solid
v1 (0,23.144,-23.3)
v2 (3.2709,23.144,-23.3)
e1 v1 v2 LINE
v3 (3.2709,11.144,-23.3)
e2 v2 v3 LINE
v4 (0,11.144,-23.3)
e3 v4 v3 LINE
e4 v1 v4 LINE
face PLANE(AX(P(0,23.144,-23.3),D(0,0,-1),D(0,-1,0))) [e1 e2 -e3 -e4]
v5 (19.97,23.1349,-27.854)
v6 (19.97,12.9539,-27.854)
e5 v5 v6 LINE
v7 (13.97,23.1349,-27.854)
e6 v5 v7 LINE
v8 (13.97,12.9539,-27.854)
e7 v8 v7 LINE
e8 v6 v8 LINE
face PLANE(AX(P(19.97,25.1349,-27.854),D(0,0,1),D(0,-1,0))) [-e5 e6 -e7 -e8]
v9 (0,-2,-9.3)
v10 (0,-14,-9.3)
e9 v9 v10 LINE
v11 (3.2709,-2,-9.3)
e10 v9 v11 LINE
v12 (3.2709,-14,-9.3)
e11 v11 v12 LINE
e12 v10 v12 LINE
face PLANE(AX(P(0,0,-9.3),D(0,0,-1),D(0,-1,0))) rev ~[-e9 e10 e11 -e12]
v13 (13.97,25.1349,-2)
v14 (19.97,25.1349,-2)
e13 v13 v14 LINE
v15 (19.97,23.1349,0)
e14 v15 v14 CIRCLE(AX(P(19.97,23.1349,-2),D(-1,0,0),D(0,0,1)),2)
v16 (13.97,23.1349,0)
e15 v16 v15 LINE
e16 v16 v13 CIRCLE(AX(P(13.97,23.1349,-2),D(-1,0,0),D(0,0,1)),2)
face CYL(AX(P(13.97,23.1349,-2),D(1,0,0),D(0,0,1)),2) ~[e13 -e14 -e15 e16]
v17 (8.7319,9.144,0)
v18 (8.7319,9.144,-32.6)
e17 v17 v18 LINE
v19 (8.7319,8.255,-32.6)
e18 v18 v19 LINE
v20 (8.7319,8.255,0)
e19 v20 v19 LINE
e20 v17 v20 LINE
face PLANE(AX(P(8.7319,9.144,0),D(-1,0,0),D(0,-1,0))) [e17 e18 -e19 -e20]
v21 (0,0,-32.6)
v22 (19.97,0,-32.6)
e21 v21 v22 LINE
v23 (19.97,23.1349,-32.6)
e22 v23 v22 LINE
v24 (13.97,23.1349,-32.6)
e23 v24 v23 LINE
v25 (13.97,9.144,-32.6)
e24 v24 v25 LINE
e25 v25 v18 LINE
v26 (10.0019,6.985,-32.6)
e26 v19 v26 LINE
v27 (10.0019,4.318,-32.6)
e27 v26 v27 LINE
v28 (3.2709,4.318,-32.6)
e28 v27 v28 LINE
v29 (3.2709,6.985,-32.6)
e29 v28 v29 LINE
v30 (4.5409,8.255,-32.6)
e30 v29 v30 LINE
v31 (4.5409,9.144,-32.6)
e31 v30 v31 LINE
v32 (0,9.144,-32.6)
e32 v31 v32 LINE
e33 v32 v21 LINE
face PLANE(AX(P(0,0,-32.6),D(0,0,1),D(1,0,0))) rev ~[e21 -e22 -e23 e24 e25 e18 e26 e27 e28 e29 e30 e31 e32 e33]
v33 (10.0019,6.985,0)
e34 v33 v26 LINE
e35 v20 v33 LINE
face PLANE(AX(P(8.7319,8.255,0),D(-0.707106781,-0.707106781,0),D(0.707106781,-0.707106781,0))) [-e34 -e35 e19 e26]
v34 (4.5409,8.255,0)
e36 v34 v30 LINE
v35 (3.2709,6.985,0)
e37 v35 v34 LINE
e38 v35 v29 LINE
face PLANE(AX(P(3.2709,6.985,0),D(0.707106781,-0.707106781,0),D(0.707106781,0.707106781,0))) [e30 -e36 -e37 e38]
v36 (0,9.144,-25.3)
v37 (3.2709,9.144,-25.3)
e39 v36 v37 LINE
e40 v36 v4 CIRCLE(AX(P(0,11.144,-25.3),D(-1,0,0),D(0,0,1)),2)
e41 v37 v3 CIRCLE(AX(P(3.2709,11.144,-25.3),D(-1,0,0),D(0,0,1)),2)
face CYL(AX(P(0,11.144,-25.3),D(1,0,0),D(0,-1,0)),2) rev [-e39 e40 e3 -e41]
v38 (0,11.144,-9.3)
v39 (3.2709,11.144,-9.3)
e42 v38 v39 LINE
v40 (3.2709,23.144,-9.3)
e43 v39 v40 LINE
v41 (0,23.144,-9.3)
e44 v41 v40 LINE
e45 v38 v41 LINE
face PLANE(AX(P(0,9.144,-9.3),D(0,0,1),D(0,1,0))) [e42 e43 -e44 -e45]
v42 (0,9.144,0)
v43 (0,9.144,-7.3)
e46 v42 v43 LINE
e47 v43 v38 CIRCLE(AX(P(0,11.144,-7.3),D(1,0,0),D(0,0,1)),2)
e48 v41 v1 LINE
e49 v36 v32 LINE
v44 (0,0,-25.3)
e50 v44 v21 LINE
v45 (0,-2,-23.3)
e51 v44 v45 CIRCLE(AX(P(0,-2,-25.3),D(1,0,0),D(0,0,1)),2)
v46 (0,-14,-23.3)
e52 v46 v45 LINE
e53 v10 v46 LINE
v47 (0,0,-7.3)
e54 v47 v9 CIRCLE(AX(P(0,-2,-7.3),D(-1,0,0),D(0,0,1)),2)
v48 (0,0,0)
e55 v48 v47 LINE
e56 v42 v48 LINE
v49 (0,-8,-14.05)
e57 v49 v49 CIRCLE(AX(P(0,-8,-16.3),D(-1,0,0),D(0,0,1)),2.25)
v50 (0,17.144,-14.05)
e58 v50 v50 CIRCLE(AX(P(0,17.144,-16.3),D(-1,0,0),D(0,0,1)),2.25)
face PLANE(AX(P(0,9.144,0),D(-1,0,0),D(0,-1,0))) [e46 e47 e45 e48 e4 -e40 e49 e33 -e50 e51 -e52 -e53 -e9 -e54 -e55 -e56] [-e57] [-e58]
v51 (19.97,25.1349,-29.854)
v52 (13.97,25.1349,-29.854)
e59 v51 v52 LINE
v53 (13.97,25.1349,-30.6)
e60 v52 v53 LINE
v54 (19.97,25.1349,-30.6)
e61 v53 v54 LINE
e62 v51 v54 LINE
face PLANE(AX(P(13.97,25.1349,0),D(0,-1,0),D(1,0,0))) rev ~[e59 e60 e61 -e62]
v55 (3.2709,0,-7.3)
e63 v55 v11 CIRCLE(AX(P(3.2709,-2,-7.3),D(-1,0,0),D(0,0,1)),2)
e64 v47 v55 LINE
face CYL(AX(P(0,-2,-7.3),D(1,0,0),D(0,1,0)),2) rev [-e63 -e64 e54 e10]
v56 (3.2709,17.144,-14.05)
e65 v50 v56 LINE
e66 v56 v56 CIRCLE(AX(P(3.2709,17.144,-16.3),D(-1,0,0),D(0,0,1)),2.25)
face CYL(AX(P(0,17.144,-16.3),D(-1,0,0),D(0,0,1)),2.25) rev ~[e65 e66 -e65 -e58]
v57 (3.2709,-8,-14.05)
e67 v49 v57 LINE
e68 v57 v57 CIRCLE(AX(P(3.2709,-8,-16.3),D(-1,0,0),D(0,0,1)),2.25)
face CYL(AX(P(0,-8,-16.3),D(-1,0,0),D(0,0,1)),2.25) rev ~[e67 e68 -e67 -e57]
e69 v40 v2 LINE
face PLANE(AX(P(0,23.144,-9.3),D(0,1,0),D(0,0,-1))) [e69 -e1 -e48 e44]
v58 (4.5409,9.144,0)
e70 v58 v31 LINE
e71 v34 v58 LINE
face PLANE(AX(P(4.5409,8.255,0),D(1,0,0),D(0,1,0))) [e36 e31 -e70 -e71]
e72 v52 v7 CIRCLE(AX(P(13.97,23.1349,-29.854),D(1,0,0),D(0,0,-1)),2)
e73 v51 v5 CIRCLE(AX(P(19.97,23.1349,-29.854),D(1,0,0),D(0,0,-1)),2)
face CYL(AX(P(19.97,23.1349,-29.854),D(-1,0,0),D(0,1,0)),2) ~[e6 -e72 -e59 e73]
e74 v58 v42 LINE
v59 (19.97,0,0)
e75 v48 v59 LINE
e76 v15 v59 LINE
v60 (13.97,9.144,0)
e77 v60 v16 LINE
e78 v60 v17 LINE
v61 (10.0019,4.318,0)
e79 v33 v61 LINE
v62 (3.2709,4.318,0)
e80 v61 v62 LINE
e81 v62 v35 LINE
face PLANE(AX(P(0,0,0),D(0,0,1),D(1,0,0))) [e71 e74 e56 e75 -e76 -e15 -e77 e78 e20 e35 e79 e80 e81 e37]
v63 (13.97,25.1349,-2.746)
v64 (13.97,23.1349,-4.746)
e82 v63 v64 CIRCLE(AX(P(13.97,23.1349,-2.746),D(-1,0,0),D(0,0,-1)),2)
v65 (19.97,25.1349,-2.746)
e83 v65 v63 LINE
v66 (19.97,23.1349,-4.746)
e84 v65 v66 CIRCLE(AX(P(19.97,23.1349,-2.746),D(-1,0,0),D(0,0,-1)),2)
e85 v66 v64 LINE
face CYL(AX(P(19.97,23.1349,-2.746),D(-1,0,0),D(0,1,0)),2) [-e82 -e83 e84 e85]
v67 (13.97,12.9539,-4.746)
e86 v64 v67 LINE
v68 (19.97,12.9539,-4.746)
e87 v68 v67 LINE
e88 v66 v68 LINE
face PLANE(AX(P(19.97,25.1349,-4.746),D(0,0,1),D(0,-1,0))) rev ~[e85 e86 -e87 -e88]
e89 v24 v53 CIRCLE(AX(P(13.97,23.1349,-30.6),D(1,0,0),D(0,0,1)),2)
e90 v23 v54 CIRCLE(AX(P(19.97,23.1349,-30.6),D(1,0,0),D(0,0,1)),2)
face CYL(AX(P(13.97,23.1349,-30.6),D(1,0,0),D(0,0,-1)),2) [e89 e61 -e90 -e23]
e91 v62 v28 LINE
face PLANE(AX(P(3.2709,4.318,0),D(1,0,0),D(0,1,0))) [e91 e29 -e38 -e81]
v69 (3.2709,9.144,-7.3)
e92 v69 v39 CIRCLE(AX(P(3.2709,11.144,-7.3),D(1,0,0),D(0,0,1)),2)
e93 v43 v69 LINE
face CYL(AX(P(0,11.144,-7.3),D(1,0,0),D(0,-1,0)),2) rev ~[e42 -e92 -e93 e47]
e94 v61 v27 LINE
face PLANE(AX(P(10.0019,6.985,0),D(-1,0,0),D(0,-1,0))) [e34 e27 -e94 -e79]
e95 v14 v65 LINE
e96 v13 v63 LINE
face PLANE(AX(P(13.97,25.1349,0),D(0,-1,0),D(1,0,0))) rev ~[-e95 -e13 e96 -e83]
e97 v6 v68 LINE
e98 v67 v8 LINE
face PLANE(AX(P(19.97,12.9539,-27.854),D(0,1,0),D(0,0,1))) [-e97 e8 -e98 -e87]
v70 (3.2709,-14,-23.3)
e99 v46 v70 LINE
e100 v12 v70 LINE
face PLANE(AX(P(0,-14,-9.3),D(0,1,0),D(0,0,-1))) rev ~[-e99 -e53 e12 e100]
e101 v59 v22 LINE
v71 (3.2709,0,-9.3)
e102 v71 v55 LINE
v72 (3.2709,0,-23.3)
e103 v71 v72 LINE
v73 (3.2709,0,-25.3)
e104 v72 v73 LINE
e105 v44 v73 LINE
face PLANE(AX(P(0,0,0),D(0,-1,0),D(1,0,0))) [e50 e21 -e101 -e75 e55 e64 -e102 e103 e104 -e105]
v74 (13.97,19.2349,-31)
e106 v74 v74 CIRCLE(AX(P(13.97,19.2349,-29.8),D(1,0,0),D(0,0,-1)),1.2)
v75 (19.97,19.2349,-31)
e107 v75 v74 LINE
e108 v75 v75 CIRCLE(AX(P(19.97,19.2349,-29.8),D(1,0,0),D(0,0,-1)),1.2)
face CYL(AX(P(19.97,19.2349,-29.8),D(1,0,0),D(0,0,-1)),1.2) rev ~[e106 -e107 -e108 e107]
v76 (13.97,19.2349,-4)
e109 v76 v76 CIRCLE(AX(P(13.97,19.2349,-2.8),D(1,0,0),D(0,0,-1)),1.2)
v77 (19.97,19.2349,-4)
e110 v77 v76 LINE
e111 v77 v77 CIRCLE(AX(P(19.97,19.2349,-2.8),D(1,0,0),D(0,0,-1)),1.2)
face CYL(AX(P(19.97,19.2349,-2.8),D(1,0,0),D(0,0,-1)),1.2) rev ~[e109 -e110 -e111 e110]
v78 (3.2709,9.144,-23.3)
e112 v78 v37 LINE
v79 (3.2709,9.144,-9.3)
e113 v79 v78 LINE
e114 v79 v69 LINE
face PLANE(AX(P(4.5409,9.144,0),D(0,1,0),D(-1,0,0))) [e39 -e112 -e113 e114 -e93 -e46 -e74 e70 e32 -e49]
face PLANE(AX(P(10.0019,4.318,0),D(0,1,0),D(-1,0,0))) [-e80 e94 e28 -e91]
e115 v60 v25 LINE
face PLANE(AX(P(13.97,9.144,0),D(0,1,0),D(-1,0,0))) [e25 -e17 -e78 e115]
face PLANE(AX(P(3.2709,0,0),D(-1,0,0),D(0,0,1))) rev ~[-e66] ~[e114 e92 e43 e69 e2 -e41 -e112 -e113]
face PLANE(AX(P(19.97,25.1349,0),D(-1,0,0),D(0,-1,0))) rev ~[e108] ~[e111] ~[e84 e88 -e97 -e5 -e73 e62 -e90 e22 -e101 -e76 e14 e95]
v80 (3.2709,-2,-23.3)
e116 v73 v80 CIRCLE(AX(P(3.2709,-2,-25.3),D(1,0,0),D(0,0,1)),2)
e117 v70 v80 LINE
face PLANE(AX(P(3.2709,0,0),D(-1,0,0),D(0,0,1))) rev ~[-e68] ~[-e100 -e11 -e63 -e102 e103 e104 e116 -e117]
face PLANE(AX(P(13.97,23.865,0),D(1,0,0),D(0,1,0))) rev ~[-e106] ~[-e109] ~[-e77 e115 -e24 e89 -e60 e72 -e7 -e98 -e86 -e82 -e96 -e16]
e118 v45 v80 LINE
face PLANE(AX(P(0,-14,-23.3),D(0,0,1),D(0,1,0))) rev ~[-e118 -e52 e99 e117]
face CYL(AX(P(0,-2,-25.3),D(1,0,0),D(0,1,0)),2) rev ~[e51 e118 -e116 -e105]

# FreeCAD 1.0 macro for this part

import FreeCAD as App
import Part
import Sketcher
from FreeCAD import Vector


def edges_at(feature, points):
    """Names of the edges that pass closest to the given points."""
    edges = feature.Shape.Edges
    near = lambda p: min(range(len(edges)), key=lambda i: edges[i].distToShape(Part.Vertex(*p))[0])
    return sorted({f"Edge{near(p) + 1}" for p in points})

doc = App.newDocument("Part")
body = doc.addObject("PartDesign::Body", "Body")

sketch1 = body.newObject("Sketcher::SketchObject", "Sketch")
sketch1.AttachmentSupport = (doc.getObject("XY_Plane"), [""])
sketch1.MapMode = "FlatFace"
sketch1.addGeometry([
    Part.LineSegment(Vector(14, 25.1, 0), Vector(14, 9.1, 0)),
    Part.LineSegment(Vector(14, 9.1, 0), Vector(8.7, 9.1, 0)),
    Part.LineSegment(Vector(8.7, 9.1, 0), Vector(8.7, 8.3, 0)),
    Part.LineSegment(Vector(8.7, 8.3, 0), Vector(10, 7, 0)),
    Part.LineSegment(Vector(10, 7, 0), Vector(10, 4.3, 0)),
    Part.LineSegment(Vector(10, 4.3, 0), Vector(3.3, 4.3, 0)),
    Part.LineSegment(Vector(3.3, 4.3, 0), Vector(3.3, 7, 0)),
    Part.LineSegment(Vector(3.3, 7, 0), Vector(4.5, 8.3, 0)),
    Part.LineSegment(Vector(4.5, 8.3, 0), Vector(4.5, 9.1, 0)),
    Part.LineSegment(Vector(4.5, 9.1, 0), Vector(0, 9.1, 0)),
    Part.LineSegment(Vector(0, 9.1, 0), Vector(0, 0, 0)),
    Part.LineSegment(Vector(0, 0, 0), Vector(20, 0, 0)),
    Part.LineSegment(Vector(20, 0, 0), Vector(20, 25.1, 0)),
    Part.LineSegment(Vector(20, 25.1, 0), Vector(14, 25.1, 0)),
], False)
sketch1.addConstraint([
    Sketcher.Constraint("Coincident", 0, 2, 1, 1),
    Sketcher.Constraint("Coincident", 1, 2, 2, 1),
    Sketcher.Constraint("Coincident", 2, 2, 3, 1),
    Sketcher.Constraint("Coincident", 3, 2, 4, 1),
    Sketcher.Constraint("Coincident", 4, 2, 5, 1),
    Sketcher.Constraint("Coincident", 5, 2, 6, 1),
    Sketcher.Constraint("Coincident", 6, 2, 7, 1),
    Sketcher.Constraint("Coincident", 7, 2, 8, 1),
    Sketcher.Constraint("Coincident", 8, 2, 9, 1),
    Sketcher.Constraint("Coincident", 9, 2, 10, 1),
    Sketcher.Constraint("Coincident", 10, 2, 11, 1),
    Sketcher.Constraint("Coincident", 11, 2, 12, 1),
    Sketcher.Constraint("Coincident", 12, 2, 13, 1),
    Sketcher.Constraint("Coincident", 13, 2, 0, 1),
    Sketcher.Constraint("Vertical", 0),
    Sketcher.Constraint("Horizontal", 1),
    Sketcher.Constraint("Vertical", 2),
    Sketcher.Constraint("Vertical", 4),
    Sketcher.Constraint("Horizontal", 5),
    Sketcher.Constraint("Vertical", 6),
    Sketcher.Constraint("Vertical", 8),
    Sketcher.Constraint("Horizontal", 9),
    Sketcher.Constraint("Vertical", 10),
    Sketcher.Constraint("Horizontal", 11),
    Sketcher.Constraint("Vertical", 12),
    Sketcher.Constraint("Horizontal", 13),
    Sketcher.Constraint("Coincident", 10, 2, -1, 1),
    Sketcher.Constraint("Perpendicular", 3, 7),
    Sketcher.Constraint("Horizontal", 3, 2, 6, 2),
    Sketcher.Constraint("Horizontal", 2, 2, 7, 2),
    Sketcher.Constraint("Horizontal", 1, 2, 8, 2),
    Sketcher.Constraint("Equal", 3, 7),
    Sketcher.Constraint("DistanceX", 13, 2, 13, 1, 6.0),
    Sketcher.Constraint("DistanceX", 11, 1, 11, 2, 19.97),
    Sketcher.Constraint("DistanceX", 1, 2, 1, 1, 5.238),
    Sketcher.Constraint("DistanceX", 5, 2, 5, 1, 6.731),
    Sketcher.Constraint("DistanceX", 9, 2, 9, 1, 4.541),
    Sketcher.Constraint("DistanceY", 0, 2, 0, 1, 15.991),
    Sketcher.Constraint("DistanceY", 2, 2, 2, 1, 0.889),
    Sketcher.Constraint("DistanceY", 4, 2, 4, 1, 2.667),
    Sketcher.Constraint("DistanceY", 10, 2, 10, 1, 9.144),
])
pad1 = body.newObject("PartDesign::Pad", "Pad")
pad1.Profile = sketch1
pad1.Length = 32.6
pad1.Reversed = True

sketch2 = body.newObject("Sketcher::SketchObject", "Sketch001")
sketch2.AttachmentSupport = (doc.getObject("YZ_Plane"), [""])
sketch2.MapMode = "FlatFace"
sketch2.AttachmentOffset = App.Placement(Vector(0, 0, 19.97), App.Rotation())
sketch2.addGeometry([
    Part.LineSegment(Vector(25, -28, 0), Vector(25, -5, 0)),
    Part.LineSegment(Vector(25, -5, 0), Vector(13, -5, 0)),
    Part.LineSegment(Vector(13, -5, 0), Vector(13, -28, 0)),
    Part.LineSegment(Vector(13, -28, 0), Vector(25, -28, 0)),
], False)
sketch2.addConstraint([
    Sketcher.Constraint("Coincident", 0, 2, 1, 1),
    Sketcher.Constraint("Coincident", 1, 2, 2, 1),
    Sketcher.Constraint("Coincident", 2, 2, 3, 1),
    Sketcher.Constraint("Coincident", 3, 2, 0, 1),
    Sketcher.Constraint("Vertical", 0),
    Sketcher.Constraint("Horizontal", 1),
    Sketcher.Constraint("Vertical", 2),
    Sketcher.Constraint("Horizontal", 3),
    Sketcher.Constraint("DistanceX", 1, 2, 1, 1, 12.181),
    Sketcher.Constraint("DistanceY", 0, 1, 0, 2, 23.108),
    Sketcher.Constraint("DistanceX", -1, 1, 0, 2, 25.135),
    Sketcher.Constraint("DistanceY", 0, 2, -1, 1, 4.746),
])
pocket1 = body.newObject("PartDesign::Pocket", "Pocket")
pocket1.Profile = sketch2
pocket1.Length = 32.6

sketch3 = body.newObject("Sketcher::SketchObject", "Sketch002")
sketch3.AttachmentSupport = (doc.getObject("YZ_Plane"), [""])
sketch3.MapMode = "FlatFace"
sketch3.AttachmentOffset = App.Placement(Vector(0, 0, 19.97), App.Rotation())
sketch3.addGeometry([
    Part.Circle(Vector(19.2, -2.8, 0), Vector(0, 0, 1), 1.2),
    Part.Circle(Vector(19.2, -29.8, 0), Vector(0, 0, 1), 1.2),
], False)
sketch3.addConstraint([
    Sketcher.Constraint("Equal", 0, 1),
    Sketcher.Constraint("Vertical", 0, 3, 1, 3),
    Sketcher.Constraint("Diameter", 0, 2.4),
    Sketcher.Constraint("DistanceY", 1, 3, 0, 3, 27.0),
    Sketcher.Constraint("DistanceY", 0, 3, -1, 1, 2.8),
    Sketcher.Constraint("DistanceX", -1, 1, 0, 3, 19.235),
])
pocket2 = body.newObject("PartDesign::Pocket", "Pocket001")
pocket2.Profile = sketch3
pocket2.Length = 32.6
doc.recompute()

fillet = body.newObject("PartDesign::Fillet", "Fillet")
fillet.Base = (pocket2, edges_at(pocket2, [
    (16.97, 25.135, 0),
    (16.97, 25.135, -4.746),
    (16.97, 25.135, -27.854),
    (16.97, 25.135, -32.6),
]))
fillet.Radius = 2

sketch4 = body.newObject("Sketcher::SketchObject", "Sketch003")
sketch4.AttachmentSupport = (doc.getObject("YZ_Plane"), [""])
sketch4.MapMode = "FlatFace"
sketch4.addGeometry([
    Part.LineSegment(Vector(9.1, -23.3, 0), Vector(9.1, -9.3, 0)),
    Part.LineSegment(Vector(9.1, -9.3, 0), Vector(23.1, -9.3, 0)),
    Part.LineSegment(Vector(23.1, -9.3, 0), Vector(23.1, -23.3, 0)),
    Part.LineSegment(Vector(23.1, -23.3, 0), Vector(9.1, -23.3, 0)),
    Part.Circle(Vector(17.1, -16.3, 0), Vector(0, 0, 1), 2.2),
    Part.LineSegment(Vector(-14, -9.3, 0), Vector(0, -9.3, 0)),
    Part.LineSegment(Vector(0, -9.3, 0), Vector(0, -23.3, 0)),
    Part.LineSegment(Vector(0, -23.3, 0), Vector(-14, -23.3, 0)),
    Part.LineSegment(Vector(-14, -23.3, 0), Vector(-14, -9.3, 0)),
    Part.Circle(Vector(-8, -16.3, 0), Vector(0, 0, 1), 2.2),
], False)
sketch4.addConstraint([
    Sketcher.Constraint("Coincident", 0, 2, 1, 1),
    Sketcher.Constraint("Coincident", 1, 2, 2, 1),
    Sketcher.Constraint("Coincident", 2, 2, 3, 1),
    Sketcher.Constraint("Coincident", 3, 2, 0, 1),
    Sketcher.Constraint("Coincident", 5, 2, 6, 1),
    Sketcher.Constraint("Coincident", 6, 2, 7, 1),
    Sketcher.Constraint("Coincident", 7, 2, 8, 1),
    Sketcher.Constraint("Coincident", 8, 2, 5, 1),
    Sketcher.Constraint("Vertical", 0),
    Sketcher.Constraint("Horizontal", 1),
    Sketcher.Constraint("Vertical", 2),
    Sketcher.Constraint("Horizontal", 3),
    Sketcher.Constraint("Horizontal", 5),
    Sketcher.Constraint("Vertical", 6),
    Sketcher.Constraint("Horizontal", 7),
    Sketcher.Constraint("Vertical", 8),
    Sketcher.Constraint("Equal", 4, 9),
    Sketcher.Constraint("PointOnObject", 5, 2, -2),
    Sketcher.Constraint("Horizontal", 4, 3, 9, 3),
    Sketcher.Constraint("Horizontal", 1, 2, 5, 2),
    Sketcher.Constraint("Horizontal", 3, 2, 6, 2),
    Sketcher.Constraint("Equal", 3, 5),
    Sketcher.Constraint("Equal", 7, 0),
    Sketcher.Constraint("Diameter", 4, 4.5),
    Sketcher.Constraint("DistanceX", 1, 1, 1, 2, 14.0),
    Sketcher.Constraint("DistanceX", 9, 3, -1, 1, 8.0),
    Sketcher.Constraint("DistanceX", 0, 2, 4, 3, 8.0),
    Sketcher.Constraint("DistanceY", 4, 3, 0, 2, 7.0),
    Sketcher.Constraint("DistanceY", 4, 3, -1, 1, 16.3),
    Sketcher.Constraint("DistanceX", -1, 1, 4, 3, 17.144),
])
pad2 = body.newObject("PartDesign::Pad", "Pad001")
pad2.Profile = sketch4
pad2.Length = 3.2709
doc.recompute()

fillet2 = body.newObject("PartDesign::Fillet", "Fillet001")
fillet2.Base = (pad2, edges_at(pad2, [
    (1.635, 9.144, -9.3),
    (1.635, 0, -9.3),
    (1.635, 9.144, -23.3),
    (1.635, 0, -23.3),
]))
fillet2.Radius = 2

doc.recompute()
